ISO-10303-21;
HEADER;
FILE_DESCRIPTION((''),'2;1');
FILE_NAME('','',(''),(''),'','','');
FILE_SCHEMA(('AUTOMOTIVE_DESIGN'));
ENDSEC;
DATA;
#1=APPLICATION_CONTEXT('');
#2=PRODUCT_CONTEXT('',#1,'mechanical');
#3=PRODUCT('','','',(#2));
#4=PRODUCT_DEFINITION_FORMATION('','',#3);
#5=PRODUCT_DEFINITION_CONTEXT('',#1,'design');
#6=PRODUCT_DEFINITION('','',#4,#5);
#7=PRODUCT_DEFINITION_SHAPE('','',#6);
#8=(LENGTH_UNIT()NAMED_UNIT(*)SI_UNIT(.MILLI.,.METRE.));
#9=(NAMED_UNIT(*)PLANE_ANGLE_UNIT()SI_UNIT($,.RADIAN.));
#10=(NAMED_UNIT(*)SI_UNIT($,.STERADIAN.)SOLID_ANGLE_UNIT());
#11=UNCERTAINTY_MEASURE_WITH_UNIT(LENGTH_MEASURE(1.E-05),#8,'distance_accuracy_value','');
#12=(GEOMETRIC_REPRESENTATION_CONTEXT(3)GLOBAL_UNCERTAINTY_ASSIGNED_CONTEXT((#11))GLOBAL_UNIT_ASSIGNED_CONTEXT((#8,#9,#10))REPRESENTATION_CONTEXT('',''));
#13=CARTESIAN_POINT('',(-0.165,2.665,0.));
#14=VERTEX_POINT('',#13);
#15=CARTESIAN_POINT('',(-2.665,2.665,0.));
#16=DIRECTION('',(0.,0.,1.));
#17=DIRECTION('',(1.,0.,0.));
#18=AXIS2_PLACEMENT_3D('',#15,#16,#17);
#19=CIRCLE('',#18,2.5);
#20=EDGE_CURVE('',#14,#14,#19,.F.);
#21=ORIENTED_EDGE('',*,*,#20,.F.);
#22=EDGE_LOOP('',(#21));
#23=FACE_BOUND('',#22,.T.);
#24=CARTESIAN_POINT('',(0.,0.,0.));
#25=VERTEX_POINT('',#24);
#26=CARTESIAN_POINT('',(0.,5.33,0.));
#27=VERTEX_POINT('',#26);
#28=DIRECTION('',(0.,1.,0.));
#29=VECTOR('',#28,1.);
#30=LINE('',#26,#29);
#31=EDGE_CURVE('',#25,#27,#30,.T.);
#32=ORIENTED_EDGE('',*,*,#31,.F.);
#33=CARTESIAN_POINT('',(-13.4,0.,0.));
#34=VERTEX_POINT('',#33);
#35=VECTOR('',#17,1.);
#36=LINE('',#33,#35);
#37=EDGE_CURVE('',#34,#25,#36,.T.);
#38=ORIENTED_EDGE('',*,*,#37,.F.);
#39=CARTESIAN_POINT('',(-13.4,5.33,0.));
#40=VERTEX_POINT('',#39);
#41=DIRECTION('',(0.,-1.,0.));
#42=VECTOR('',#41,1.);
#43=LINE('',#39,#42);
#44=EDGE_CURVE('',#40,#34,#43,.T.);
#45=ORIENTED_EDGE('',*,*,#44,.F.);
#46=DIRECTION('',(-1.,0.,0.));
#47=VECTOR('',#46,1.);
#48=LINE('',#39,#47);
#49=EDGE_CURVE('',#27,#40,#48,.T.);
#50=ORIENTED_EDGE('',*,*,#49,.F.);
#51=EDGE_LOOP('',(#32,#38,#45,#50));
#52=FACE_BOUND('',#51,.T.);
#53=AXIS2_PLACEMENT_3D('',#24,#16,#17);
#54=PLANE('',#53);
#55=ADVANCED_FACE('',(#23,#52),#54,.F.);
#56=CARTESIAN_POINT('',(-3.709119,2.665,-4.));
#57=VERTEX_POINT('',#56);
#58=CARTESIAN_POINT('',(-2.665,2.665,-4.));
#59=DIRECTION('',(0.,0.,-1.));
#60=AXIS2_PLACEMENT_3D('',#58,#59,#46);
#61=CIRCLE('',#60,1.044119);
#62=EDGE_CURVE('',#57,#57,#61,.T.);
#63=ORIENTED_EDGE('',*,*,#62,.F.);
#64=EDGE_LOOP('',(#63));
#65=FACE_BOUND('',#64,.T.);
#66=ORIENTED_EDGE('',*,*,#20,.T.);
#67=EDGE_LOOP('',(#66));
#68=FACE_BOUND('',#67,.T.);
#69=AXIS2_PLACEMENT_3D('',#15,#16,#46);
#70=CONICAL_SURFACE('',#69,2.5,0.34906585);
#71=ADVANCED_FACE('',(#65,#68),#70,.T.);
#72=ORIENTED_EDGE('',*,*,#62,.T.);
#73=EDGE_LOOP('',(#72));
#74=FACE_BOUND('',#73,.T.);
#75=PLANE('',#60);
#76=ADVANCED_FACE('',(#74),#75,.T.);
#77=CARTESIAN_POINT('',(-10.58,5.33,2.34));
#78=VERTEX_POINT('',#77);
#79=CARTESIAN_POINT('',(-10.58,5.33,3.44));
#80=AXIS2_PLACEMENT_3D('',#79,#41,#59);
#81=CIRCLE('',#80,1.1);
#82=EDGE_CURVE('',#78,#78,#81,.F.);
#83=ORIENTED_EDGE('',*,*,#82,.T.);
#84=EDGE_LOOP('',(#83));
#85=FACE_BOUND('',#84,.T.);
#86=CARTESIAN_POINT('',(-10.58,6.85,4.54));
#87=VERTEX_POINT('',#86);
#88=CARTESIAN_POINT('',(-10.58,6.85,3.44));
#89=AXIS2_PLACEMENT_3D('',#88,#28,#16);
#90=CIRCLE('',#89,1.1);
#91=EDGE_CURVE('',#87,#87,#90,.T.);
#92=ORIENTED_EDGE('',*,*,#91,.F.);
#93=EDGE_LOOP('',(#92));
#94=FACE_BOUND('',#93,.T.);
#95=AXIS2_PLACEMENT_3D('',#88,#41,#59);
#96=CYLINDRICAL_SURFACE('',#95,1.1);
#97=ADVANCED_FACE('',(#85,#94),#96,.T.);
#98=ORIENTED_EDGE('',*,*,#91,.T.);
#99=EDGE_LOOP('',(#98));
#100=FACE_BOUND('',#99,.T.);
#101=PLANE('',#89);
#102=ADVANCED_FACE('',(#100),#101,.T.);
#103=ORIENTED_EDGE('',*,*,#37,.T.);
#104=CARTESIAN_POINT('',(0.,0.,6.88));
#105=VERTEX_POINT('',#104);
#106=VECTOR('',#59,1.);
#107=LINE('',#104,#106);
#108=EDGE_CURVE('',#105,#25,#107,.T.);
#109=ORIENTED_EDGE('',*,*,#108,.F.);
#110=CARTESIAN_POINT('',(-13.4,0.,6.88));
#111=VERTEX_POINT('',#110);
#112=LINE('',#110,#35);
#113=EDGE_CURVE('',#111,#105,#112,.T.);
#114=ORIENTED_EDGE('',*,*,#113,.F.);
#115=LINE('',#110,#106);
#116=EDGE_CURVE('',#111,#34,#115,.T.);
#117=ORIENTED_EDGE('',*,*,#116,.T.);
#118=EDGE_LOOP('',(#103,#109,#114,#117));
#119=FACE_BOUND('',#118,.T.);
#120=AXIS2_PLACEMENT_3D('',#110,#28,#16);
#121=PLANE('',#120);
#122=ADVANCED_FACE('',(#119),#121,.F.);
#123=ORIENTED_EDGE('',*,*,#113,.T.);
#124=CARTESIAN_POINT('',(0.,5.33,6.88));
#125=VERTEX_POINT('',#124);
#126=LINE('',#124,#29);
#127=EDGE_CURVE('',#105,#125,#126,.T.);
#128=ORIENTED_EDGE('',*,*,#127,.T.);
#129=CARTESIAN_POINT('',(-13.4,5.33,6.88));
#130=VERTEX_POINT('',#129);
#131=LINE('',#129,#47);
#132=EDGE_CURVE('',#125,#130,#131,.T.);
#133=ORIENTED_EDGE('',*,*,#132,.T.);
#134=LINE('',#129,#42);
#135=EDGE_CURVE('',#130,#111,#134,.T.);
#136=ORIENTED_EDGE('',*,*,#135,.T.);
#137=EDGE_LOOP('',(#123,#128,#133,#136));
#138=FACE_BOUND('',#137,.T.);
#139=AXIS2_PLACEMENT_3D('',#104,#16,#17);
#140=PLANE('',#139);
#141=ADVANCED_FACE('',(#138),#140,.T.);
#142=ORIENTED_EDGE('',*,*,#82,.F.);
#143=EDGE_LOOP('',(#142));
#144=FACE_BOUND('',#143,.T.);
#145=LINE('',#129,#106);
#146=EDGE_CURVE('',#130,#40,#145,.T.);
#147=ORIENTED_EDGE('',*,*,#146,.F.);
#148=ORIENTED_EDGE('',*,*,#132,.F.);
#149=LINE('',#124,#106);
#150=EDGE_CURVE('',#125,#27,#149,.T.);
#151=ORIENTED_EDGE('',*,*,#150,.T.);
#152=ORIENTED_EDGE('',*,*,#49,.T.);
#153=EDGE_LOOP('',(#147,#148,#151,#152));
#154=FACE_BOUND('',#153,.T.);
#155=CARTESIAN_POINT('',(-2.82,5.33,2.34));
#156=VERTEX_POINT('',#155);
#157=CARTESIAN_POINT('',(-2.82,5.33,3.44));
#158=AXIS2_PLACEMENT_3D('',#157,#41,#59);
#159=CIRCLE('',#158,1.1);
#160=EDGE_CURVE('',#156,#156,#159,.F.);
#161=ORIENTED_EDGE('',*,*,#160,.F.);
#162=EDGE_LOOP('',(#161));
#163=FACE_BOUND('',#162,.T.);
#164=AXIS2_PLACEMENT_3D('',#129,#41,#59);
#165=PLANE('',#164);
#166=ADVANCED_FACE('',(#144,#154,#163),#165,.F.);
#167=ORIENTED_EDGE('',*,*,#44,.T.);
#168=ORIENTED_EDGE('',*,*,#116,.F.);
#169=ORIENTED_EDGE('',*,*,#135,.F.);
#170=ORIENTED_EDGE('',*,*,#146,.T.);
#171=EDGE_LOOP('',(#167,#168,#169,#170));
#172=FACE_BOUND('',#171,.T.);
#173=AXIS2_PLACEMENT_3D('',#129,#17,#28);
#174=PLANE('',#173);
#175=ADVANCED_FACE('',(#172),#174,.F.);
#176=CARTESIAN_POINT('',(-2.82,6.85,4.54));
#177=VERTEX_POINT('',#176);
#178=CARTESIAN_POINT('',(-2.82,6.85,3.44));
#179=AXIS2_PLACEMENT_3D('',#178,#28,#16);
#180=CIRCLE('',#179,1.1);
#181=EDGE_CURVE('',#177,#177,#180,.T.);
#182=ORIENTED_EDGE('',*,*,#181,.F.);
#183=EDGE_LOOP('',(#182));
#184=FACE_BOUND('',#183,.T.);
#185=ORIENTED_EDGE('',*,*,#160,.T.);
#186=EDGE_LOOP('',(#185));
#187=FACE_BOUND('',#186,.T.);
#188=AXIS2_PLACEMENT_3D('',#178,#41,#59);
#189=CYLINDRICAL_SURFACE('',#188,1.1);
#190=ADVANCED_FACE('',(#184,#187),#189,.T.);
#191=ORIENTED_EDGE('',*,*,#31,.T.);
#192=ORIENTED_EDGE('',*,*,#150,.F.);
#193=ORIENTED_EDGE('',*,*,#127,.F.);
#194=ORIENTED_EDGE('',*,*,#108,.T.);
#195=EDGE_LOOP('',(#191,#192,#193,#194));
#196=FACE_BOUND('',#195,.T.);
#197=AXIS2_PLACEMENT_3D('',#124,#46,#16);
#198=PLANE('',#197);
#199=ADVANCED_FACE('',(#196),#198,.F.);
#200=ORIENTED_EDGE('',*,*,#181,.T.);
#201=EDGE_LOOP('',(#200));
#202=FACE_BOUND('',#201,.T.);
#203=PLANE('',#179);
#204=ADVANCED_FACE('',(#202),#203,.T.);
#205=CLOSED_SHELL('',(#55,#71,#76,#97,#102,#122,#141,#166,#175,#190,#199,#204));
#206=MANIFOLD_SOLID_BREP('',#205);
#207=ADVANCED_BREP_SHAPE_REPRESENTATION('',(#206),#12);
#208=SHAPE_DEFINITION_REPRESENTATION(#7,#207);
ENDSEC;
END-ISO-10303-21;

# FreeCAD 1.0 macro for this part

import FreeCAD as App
import Part
import Sketcher

V = App.Vector
Q = App.Units.Quantity

doc = App.newDocument("Part")
body = doc.addObject("PartDesign::Body", "Body")

sketch1 = body.newObject("Sketcher::SketchObject", "Sketch")
sketch1.AttachmentSupport = (doc.getObject("XY_Plane"), [""])
sketch1.MapMode = "FlatFace"
sketch1.addGeometry(Part.LineSegment(V(-13, 5, 0), V(-13, 0, 0)), False)
sketch1.addGeometry(Part.LineSegment(V(-13, 0, 0), V(0, 0, 0)), False)
sketch1.addGeometry(Part.LineSegment(V(0, 0, 0), V(0, 5, 0)), False)
sketch1.addGeometry(Part.LineSegment(V(0, 5, 0), V(-13, 5, 0)), False)
sketch1.addConstraint(Sketcher.Constraint("Coincident", 0, 2, 1, 1))
sketch1.addConstraint(Sketcher.Constraint("Coincident", 1, 2, 2, 1))
sketch1.addConstraint(Sketcher.Constraint("Coincident", 2, 2, 3, 1))
sketch1.addConstraint(Sketcher.Constraint("Coincident", 3, 2, 0, 1))
sketch1.addConstraint(Sketcher.Constraint("Vertical", 0))
sketch1.addConstraint(Sketcher.Constraint("Horizontal", 1))
sketch1.addConstraint(Sketcher.Constraint("Vertical", 2))
sketch1.addConstraint(Sketcher.Constraint("Horizontal", 3))
sketch1.addConstraint(Sketcher.Constraint("Coincident", 1, 2, -1, 1))
sketch1.addConstraint(Sketcher.Constraint("DistanceX", 1, 1, 1, 2, Q("13.4 mm")))
sketch1.addConstraint(Sketcher.Constraint("DistanceY", 0, 2, 0, 1, Q("5.33 mm")))
pad1 = body.newObject("PartDesign::Pad", "Pad")
pad1.Profile = sketch1
pad1.Length = 6.88

sketch2 = body.newObject("Sketcher::SketchObject", "Sketch001")
sketch2.AttachmentSupport = (doc.getObject("XZ_Plane"), [""])
sketch2.MapMode = "FlatFace"
sketch2.AttachmentOffset = App.Placement(V(0, 0, -5.33), App.Rotation())
sketch2.addGeometry(Part.Circle(V(-10.6, 3.4, 0), V(0, 0, 1), 1.1), False)
sketch2.addGeometry(Part.Circle(V(-2.8, 3.4, 0), V(0, 0, 1), 1.1), False)
sketch2.addConstraint(Sketcher.Constraint("Equal", 0, 1))
sketch2.addConstraint(Sketcher.Constraint("Horizontal", 0, 3, 1, 3))
sketch2.addConstraint(Sketcher.Constraint("Diameter", 0, Q("2.2 mm")))
sketch2.addConstraint(Sketcher.Constraint("DistanceX", 0, 3, -1, 1, Q("10.58 mm")))
sketch2.addConstraint(Sketcher.Constraint("DistanceY", -1, 1, 0, 3, Q("3.44 mm")))
sketch2.addConstraint(Sketcher.Constraint("DistanceX", 1, 3, -1, 1, Q("2.82 mm")))
pad2 = body.newObject("PartDesign::Pad", "Pad001")
pad2.Profile = sketch2
pad2.Length = 1.52
pad2.Reversed = True

sketch3 = body.newObject("Sketcher::SketchObject", "Sketch002")
sketch3.AttachmentSupport = (doc.getObject("XY_Plane"), [""])
sketch3.MapMode = "FlatFace"
sketch3.addGeometry(Part.Circle(V(-2.7, 2.7, 0), V(0, 0, 1), 2.5), False)
sketch3.addConstraint(Sketcher.Constraint("Diameter", 0, Q("5 mm")))
sketch3.addConstraint(Sketcher.Constraint("DistanceX", 0, 3, -1, 1, Q("2.665 mm")))
sketch3.addConstraint(Sketcher.Constraint("DistanceY", -1, 1, 0, 3, Q("2.665 mm")))
pad3 = body.newObject("PartDesign::Pad", "Pad002")
pad3.Profile = sketch3
pad3.Length = 4
pad3.Reversed = True
pad3.TaperAngle = -20

doc.recompute()
